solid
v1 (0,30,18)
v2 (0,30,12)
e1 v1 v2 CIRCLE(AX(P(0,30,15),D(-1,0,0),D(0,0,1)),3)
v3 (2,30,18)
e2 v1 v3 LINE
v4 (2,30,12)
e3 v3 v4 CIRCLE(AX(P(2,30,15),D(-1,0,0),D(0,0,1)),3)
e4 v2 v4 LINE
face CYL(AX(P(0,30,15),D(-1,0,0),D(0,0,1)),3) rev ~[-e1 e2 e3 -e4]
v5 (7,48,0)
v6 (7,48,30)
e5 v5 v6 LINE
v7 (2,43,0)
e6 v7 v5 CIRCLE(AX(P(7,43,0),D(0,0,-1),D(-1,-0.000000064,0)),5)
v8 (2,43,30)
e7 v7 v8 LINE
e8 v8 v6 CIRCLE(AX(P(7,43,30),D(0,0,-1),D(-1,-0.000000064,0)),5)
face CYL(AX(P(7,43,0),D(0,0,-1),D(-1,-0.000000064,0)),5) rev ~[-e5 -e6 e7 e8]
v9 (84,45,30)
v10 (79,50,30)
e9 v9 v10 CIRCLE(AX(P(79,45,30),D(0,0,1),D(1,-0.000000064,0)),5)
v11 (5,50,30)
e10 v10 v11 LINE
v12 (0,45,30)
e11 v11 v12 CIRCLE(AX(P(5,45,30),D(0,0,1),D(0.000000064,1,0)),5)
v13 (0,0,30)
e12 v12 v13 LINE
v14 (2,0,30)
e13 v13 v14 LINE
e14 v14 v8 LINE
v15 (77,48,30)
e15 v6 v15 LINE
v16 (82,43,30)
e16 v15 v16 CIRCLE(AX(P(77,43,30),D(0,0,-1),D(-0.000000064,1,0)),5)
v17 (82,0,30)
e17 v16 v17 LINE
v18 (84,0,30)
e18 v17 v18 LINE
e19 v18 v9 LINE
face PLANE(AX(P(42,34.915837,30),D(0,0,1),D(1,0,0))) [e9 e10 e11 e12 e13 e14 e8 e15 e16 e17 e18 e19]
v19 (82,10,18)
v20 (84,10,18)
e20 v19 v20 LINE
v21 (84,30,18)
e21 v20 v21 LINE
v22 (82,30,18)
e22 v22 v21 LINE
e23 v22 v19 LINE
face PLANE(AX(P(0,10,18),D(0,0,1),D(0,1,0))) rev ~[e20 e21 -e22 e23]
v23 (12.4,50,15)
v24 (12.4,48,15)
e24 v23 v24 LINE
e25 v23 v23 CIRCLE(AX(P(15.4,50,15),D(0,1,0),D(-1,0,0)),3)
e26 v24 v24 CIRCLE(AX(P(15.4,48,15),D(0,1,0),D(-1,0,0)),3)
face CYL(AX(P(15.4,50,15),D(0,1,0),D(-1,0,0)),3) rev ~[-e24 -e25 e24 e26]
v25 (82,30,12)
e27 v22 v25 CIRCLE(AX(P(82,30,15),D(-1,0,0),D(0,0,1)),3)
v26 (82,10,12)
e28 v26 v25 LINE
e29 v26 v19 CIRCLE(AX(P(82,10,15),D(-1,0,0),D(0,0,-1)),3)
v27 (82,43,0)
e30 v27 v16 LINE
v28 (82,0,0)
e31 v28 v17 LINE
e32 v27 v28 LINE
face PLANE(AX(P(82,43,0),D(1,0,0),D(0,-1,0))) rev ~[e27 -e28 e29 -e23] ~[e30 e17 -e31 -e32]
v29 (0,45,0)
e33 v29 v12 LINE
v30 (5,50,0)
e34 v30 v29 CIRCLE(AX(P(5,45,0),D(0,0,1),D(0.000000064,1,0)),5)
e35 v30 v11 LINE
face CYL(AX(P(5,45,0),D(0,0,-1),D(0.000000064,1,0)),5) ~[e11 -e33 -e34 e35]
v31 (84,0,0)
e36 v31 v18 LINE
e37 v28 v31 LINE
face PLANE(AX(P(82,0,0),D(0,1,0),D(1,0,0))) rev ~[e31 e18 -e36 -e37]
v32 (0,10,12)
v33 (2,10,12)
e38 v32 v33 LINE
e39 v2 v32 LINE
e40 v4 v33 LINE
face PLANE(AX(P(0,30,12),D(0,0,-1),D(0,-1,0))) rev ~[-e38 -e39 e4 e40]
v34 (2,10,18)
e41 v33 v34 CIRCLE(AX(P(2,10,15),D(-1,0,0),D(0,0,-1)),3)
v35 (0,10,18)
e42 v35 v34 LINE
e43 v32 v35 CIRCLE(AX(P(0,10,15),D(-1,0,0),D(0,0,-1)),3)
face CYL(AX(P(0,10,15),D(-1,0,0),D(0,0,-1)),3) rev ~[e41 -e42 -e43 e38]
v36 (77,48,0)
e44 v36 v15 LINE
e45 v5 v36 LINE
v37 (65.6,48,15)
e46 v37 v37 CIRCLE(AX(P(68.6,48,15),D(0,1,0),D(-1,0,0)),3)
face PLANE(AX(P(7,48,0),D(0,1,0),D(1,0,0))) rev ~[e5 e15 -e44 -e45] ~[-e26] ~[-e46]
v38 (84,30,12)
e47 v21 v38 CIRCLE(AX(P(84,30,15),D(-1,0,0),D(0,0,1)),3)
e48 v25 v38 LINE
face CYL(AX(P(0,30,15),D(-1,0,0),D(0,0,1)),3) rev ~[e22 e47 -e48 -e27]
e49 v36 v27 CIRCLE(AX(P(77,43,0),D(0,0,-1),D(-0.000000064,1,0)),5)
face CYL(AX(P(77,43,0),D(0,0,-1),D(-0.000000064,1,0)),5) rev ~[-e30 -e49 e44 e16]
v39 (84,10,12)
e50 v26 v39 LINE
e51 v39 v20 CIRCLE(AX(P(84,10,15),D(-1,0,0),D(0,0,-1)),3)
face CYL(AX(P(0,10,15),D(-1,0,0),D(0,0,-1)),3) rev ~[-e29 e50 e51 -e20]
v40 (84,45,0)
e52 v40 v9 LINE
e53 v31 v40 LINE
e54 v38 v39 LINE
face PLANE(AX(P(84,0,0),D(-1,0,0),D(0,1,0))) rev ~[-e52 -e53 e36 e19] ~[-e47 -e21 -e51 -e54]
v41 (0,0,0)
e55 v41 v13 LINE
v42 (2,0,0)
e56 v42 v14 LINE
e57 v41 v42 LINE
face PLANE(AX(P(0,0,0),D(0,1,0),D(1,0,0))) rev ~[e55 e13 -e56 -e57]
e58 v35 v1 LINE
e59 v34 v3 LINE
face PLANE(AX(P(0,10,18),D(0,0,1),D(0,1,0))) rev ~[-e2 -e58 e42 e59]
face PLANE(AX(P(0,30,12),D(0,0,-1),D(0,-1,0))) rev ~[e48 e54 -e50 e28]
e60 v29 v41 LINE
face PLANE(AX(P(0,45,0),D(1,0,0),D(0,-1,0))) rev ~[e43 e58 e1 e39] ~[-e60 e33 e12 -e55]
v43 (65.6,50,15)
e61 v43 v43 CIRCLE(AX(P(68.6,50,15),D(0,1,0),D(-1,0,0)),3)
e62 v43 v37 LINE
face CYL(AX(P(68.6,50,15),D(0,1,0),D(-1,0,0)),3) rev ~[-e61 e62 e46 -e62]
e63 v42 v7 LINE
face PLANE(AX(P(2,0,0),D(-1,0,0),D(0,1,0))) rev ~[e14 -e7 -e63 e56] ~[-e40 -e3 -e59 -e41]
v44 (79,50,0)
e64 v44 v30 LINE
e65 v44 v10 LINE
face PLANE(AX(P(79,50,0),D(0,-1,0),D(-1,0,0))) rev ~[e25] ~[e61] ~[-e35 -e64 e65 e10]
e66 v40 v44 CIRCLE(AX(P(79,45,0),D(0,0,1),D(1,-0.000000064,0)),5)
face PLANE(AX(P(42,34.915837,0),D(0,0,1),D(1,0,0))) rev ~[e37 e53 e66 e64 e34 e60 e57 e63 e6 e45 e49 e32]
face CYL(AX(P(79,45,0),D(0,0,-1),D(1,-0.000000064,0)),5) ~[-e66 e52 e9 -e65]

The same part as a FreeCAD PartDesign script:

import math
import FreeCAD as App
import Part
import Sketcher

V = App.Vector
Q = App.Units.Quantity

doc = App.newDocument("Part")
params = doc.addObject("Spreadsheet::Sheet", "Params")
for row, (alias, value) in enumerate([
    ("sketch1_radius", "5 mm"),
    ("sketch1_width", "2 mm"),
    ("sketch1_width2", "70 mm"),
    ("sketch1_height", "45 mm"),
    ("sketch1_height2", "43 mm"),
    ("pad1_length", "30 mm"),
    ("sketch2_radius", "3 mm"),
    ("sketch2_width", "20 mm"),
    ("sketch3_diameter", "6 mm"),
], start=1):
    params.set(f"A{row}", alias)
    params.set(f"B{row}", "=" + value)
    params.setAlias(f"B{row}", alias)

body = doc.addObject("PartDesign::Body", "Body")

# Sketch on XY plane
sketch1 = body.newObject("Sketcher::SketchObject", "Sketch")
sketch1.AttachmentSupport = (doc.getObject("XY_Plane"), [""])
sketch1.MapMode = "FlatFace"
sketch1.addGeometry(Part.LineSegment(V(0, 45, 0), V(0, 0, 0)), False)
sketch1.addGeometry(Part.LineSegment(V(0, 0, 0), V(2, 0, 0)), False)
sketch1.addGeometry(Part.LineSegment(V(2, 0, 0), V(2, 43, 0)), False)
sketch1.addGeometry(Part.ArcOfCircle(Part.Circle(V(7, 43, 0), V(0, 0, 1), 5), math.radians(90), math.radians(180)), False)
sketch1.addGeometry(Part.LineSegment(V(7, 48, 0), V(77, 48, 0)), False)
sketch1.addGeometry(Part.ArcOfCircle(Part.Circle(V(77, 43, 0), V(0, 0, 1), 5), math.radians(0), math.radians(90)), False)
sketch1.addGeometry(Part.LineSegment(V(82, 43, 0), V(82, 0, 0)), False)
sketch1.addGeometry(Part.LineSegment(V(82, 0, 0), V(84, 0, 0)), False)
sketch1.addGeometry(Part.LineSegment(V(84, 0, 0), V(84, 45, 0)), False)
sketch1.addGeometry(Part.ArcOfCircle(Part.Circle(V(79, 45, 0), V(0, 0, 1), 5), math.radians(0), math.radians(90)), False)
sketch1.addGeometry(Part.LineSegment(V(79, 50, 0), V(5, 50, 0)), False)
sketch1.addGeometry(Part.ArcOfCircle(Part.Circle(V(5, 45, 0), V(0, 0, 1), 5), math.radians(90), math.radians(180)), False)
sketch1.addConstraint(Sketcher.Constraint("Coincident", 0, 2, 1, 1))
sketch1.addConstraint(Sketcher.Constraint("Coincident", 1, 2, 2, 1))
sketch1.addConstraint(Sketcher.Constraint("Tangent", 2, 2, 3, 2))
sketch1.addConstraint(Sketcher.Constraint("Tangent", 3, 1, 4, 1))
sketch1.addConstraint(Sketcher.Constraint("Tangent", 4, 2, 5, 2))
sketch1.addConstraint(Sketcher.Constraint("Tangent", 5, 1, 6, 1))
sketch1.addConstraint(Sketcher.Constraint("Coincident", 6, 2, 7, 1))
sketch1.addConstraint(Sketcher.Constraint("Coincident", 7, 2, 8, 1))
sketch1.addConstraint(Sketcher.Constraint("Tangent", 8, 2, 9, 1))
sketch1.addConstraint(Sketcher.Constraint("Tangent", 9, 2, 10, 1))
sketch1.addConstraint(Sketcher.Constraint("Tangent", 10, 2, 11, 1))
sketch1.addConstraint(Sketcher.Constraint("Tangent", 11, 2, 0, 1))
sketch1.addConstraint(Sketcher.Constraint("Vertical", 0))
sketch1.addConstraint(Sketcher.Constraint("Horizontal", 1))
sketch1.addConstraint(Sketcher.Constraint("Vertical", 2))
sketch1.addConstraint(Sketcher.Constraint("Horizontal", 4))
sketch1.addConstraint(Sketcher.Constraint("Vertical", 6))
sketch1.addConstraint(Sketcher.Constraint("Horizontal", 7))
sketch1.addConstraint(Sketcher.Constraint("Vertical", 8))
sketch1.addConstraint(Sketcher.Constraint("Horizontal", 10))
sketch1.addConstraint(Sketcher.Constraint("Coincident", 0, 2, -1, 1))
sketch1.addConstraint(Sketcher.Constraint("Equal", 3, 5))
sketch1.addConstraint(Sketcher.Constraint("Equal", 5, 9))
sketch1.addConstraint(Sketcher.Constraint("Equal", 9, 11))
sketch1.addConstraint(Sketcher.Constraint("PointOnObject", 6, 2, -1))
sketch1.addConstraint(Sketcher.Constraint("Equal", 1, 7))
sketch1.addConstraint(Sketcher.Constraint("Radius", 3, Q("5 mm")))
sketch1.addConstraint(Sketcher.Constraint("DistanceX", 1, 1, 1, 2, Q("2 mm")))
sketch1.addConstraint(Sketcher.Constraint("DistanceX", 4, 1, 4, 2, Q("70 mm")))
sketch1.addConstraint(Sketcher.Constraint("DistanceY", 0, 2, 0, 1, Q("45 mm")))
sketch1.addConstraint(Sketcher.Constraint("DistanceY", 2, 1, 2, 2, Q("43 mm")))
sketch1.setExpression("Constraints[26]", "Params.sketch1_radius")
sketch1.setExpression("Constraints[27]", "Params.sketch1_width")
sketch1.setExpression("Constraints[28]", "Params.sketch1_width2")
sketch1.setExpression("Constraints[29]", "Params.sketch1_height")
sketch1.setExpression("Constraints[30]", "Params.sketch1_height2")
pad1 = body.newObject("PartDesign::Pad", "Pad")
pad1.Profile = sketch1
pad1.setExpression("Length", "Params.pad1_length")

# Sketch on YZ plane
sketch2 = body.newObject("Sketcher::SketchObject", "Sketch001")
sketch2.AttachmentSupport = (doc.getObject("YZ_Plane"), [""])
sketch2.MapMode = "FlatFace"
sketch2.addGeometry(Part.LineSegment(V(10, 18, 0), V(30, 18, 0)), False)
sketch2.addGeometry(Part.ArcOfCircle(Part.Circle(V(30, 15, 0), V(0, 0, 1), 3), math.radians(-90), math.radians(90)), False)
sketch2.addGeometry(Part.LineSegment(V(30, 12, 0), V(10, 12, 0)), False)
sketch2.addGeometry(Part.ArcOfCircle(Part.Circle(V(10, 15, 0), V(0, 0, 1), 3), math.radians(90), math.radians(270)), False)
sketch2.addConstraint(Sketcher.Constraint("Tangent", 0, 2, 1, 2))
sketch2.addConstraint(Sketcher.Constraint("Tangent", 1, 1, 2, 1))
sketch2.addConstraint(Sketcher.Constraint("Tangent", 2, 2, 3, 2))
sketch2.addConstraint(Sketcher.Constraint("Tangent", 3, 1, 0, 1))
sketch2.addConstraint(Sketcher.Constraint("Horizontal", 0))
sketch2.addConstraint(Sketcher.Constraint("Horizontal", 2))
sketch2.addConstraint(Sketcher.Constraint("Radius", 1, Q("3 mm")))
sketch2.addConstraint(Sketcher.Constraint("DistanceX", 0, 1, 0, 2, Q("20 mm")))
sketch2.addConstraint(Sketcher.Constraint("DistanceX", -1, 1, 1, 3, Q("30 mm")))
sketch2.addConstraint(Sketcher.Constraint("DistanceY", -1, 1, 1, 3, Q("15 mm")))
sketch2.setExpression("Constraints[6]", "Params.sketch2_radius")
sketch2.setExpression("Constraints[7]", "Params.sketch2_width")
pocket1 = body.newObject("PartDesign::Pocket", "Pocket")
pocket1.Profile = sketch2
pocket1.Type = "ThroughAll"
pocket1.Reversed = True

# Sketch on XZ plane
sketch3 = body.newObject("Sketcher::SketchObject", "Sketch002")
sketch3.AttachmentSupport = (doc.getObject("XZ_Plane"), [""])
sketch3.MapMode = "FlatFace"
sketch3.AttachmentOffset = App.Placement(V(0, 0, -50), App.Rotation())
sketch3.addGeometry(Part.Circle(V(68.6, 15, 0), V(0, 0, 1), 3), False)
sketch3.addGeometry(Part.Circle(V(15.4, 15, 0), V(0, 0, 1), 3), False)
sketch3.addConstraint(Sketcher.Constraint("Equal", 0, 1))
sketch3.addConstraint(Sketcher.Constraint("Horizontal", 0, 3, 1, 3))
sketch3.addConstraint(Sketcher.Constraint("Diameter", 0, Q("6 mm")))
sketch3.addConstraint(Sketcher.Constraint("DistanceY", -1, 1, 0, 3, Q("15 mm")))
sketch3.addConstraint(Sketcher.Constraint("DistanceX", -1, 1, 0, 3, Q("68.6 mm")))
sketch3.addConstraint(Sketcher.Constraint("DistanceX", -1, 1, 1, 3, Q("15.4 mm")))
sketch3.setExpression("Constraints[2]", "Params.sketch3_diameter")
pocket2 = body.newObject("PartDesign::Pocket", "Pocket001")
pocket2.Profile = sketch3
pocket2.Type = "ThroughAll"
pocket2.Reversed = True

doc.recompute()
